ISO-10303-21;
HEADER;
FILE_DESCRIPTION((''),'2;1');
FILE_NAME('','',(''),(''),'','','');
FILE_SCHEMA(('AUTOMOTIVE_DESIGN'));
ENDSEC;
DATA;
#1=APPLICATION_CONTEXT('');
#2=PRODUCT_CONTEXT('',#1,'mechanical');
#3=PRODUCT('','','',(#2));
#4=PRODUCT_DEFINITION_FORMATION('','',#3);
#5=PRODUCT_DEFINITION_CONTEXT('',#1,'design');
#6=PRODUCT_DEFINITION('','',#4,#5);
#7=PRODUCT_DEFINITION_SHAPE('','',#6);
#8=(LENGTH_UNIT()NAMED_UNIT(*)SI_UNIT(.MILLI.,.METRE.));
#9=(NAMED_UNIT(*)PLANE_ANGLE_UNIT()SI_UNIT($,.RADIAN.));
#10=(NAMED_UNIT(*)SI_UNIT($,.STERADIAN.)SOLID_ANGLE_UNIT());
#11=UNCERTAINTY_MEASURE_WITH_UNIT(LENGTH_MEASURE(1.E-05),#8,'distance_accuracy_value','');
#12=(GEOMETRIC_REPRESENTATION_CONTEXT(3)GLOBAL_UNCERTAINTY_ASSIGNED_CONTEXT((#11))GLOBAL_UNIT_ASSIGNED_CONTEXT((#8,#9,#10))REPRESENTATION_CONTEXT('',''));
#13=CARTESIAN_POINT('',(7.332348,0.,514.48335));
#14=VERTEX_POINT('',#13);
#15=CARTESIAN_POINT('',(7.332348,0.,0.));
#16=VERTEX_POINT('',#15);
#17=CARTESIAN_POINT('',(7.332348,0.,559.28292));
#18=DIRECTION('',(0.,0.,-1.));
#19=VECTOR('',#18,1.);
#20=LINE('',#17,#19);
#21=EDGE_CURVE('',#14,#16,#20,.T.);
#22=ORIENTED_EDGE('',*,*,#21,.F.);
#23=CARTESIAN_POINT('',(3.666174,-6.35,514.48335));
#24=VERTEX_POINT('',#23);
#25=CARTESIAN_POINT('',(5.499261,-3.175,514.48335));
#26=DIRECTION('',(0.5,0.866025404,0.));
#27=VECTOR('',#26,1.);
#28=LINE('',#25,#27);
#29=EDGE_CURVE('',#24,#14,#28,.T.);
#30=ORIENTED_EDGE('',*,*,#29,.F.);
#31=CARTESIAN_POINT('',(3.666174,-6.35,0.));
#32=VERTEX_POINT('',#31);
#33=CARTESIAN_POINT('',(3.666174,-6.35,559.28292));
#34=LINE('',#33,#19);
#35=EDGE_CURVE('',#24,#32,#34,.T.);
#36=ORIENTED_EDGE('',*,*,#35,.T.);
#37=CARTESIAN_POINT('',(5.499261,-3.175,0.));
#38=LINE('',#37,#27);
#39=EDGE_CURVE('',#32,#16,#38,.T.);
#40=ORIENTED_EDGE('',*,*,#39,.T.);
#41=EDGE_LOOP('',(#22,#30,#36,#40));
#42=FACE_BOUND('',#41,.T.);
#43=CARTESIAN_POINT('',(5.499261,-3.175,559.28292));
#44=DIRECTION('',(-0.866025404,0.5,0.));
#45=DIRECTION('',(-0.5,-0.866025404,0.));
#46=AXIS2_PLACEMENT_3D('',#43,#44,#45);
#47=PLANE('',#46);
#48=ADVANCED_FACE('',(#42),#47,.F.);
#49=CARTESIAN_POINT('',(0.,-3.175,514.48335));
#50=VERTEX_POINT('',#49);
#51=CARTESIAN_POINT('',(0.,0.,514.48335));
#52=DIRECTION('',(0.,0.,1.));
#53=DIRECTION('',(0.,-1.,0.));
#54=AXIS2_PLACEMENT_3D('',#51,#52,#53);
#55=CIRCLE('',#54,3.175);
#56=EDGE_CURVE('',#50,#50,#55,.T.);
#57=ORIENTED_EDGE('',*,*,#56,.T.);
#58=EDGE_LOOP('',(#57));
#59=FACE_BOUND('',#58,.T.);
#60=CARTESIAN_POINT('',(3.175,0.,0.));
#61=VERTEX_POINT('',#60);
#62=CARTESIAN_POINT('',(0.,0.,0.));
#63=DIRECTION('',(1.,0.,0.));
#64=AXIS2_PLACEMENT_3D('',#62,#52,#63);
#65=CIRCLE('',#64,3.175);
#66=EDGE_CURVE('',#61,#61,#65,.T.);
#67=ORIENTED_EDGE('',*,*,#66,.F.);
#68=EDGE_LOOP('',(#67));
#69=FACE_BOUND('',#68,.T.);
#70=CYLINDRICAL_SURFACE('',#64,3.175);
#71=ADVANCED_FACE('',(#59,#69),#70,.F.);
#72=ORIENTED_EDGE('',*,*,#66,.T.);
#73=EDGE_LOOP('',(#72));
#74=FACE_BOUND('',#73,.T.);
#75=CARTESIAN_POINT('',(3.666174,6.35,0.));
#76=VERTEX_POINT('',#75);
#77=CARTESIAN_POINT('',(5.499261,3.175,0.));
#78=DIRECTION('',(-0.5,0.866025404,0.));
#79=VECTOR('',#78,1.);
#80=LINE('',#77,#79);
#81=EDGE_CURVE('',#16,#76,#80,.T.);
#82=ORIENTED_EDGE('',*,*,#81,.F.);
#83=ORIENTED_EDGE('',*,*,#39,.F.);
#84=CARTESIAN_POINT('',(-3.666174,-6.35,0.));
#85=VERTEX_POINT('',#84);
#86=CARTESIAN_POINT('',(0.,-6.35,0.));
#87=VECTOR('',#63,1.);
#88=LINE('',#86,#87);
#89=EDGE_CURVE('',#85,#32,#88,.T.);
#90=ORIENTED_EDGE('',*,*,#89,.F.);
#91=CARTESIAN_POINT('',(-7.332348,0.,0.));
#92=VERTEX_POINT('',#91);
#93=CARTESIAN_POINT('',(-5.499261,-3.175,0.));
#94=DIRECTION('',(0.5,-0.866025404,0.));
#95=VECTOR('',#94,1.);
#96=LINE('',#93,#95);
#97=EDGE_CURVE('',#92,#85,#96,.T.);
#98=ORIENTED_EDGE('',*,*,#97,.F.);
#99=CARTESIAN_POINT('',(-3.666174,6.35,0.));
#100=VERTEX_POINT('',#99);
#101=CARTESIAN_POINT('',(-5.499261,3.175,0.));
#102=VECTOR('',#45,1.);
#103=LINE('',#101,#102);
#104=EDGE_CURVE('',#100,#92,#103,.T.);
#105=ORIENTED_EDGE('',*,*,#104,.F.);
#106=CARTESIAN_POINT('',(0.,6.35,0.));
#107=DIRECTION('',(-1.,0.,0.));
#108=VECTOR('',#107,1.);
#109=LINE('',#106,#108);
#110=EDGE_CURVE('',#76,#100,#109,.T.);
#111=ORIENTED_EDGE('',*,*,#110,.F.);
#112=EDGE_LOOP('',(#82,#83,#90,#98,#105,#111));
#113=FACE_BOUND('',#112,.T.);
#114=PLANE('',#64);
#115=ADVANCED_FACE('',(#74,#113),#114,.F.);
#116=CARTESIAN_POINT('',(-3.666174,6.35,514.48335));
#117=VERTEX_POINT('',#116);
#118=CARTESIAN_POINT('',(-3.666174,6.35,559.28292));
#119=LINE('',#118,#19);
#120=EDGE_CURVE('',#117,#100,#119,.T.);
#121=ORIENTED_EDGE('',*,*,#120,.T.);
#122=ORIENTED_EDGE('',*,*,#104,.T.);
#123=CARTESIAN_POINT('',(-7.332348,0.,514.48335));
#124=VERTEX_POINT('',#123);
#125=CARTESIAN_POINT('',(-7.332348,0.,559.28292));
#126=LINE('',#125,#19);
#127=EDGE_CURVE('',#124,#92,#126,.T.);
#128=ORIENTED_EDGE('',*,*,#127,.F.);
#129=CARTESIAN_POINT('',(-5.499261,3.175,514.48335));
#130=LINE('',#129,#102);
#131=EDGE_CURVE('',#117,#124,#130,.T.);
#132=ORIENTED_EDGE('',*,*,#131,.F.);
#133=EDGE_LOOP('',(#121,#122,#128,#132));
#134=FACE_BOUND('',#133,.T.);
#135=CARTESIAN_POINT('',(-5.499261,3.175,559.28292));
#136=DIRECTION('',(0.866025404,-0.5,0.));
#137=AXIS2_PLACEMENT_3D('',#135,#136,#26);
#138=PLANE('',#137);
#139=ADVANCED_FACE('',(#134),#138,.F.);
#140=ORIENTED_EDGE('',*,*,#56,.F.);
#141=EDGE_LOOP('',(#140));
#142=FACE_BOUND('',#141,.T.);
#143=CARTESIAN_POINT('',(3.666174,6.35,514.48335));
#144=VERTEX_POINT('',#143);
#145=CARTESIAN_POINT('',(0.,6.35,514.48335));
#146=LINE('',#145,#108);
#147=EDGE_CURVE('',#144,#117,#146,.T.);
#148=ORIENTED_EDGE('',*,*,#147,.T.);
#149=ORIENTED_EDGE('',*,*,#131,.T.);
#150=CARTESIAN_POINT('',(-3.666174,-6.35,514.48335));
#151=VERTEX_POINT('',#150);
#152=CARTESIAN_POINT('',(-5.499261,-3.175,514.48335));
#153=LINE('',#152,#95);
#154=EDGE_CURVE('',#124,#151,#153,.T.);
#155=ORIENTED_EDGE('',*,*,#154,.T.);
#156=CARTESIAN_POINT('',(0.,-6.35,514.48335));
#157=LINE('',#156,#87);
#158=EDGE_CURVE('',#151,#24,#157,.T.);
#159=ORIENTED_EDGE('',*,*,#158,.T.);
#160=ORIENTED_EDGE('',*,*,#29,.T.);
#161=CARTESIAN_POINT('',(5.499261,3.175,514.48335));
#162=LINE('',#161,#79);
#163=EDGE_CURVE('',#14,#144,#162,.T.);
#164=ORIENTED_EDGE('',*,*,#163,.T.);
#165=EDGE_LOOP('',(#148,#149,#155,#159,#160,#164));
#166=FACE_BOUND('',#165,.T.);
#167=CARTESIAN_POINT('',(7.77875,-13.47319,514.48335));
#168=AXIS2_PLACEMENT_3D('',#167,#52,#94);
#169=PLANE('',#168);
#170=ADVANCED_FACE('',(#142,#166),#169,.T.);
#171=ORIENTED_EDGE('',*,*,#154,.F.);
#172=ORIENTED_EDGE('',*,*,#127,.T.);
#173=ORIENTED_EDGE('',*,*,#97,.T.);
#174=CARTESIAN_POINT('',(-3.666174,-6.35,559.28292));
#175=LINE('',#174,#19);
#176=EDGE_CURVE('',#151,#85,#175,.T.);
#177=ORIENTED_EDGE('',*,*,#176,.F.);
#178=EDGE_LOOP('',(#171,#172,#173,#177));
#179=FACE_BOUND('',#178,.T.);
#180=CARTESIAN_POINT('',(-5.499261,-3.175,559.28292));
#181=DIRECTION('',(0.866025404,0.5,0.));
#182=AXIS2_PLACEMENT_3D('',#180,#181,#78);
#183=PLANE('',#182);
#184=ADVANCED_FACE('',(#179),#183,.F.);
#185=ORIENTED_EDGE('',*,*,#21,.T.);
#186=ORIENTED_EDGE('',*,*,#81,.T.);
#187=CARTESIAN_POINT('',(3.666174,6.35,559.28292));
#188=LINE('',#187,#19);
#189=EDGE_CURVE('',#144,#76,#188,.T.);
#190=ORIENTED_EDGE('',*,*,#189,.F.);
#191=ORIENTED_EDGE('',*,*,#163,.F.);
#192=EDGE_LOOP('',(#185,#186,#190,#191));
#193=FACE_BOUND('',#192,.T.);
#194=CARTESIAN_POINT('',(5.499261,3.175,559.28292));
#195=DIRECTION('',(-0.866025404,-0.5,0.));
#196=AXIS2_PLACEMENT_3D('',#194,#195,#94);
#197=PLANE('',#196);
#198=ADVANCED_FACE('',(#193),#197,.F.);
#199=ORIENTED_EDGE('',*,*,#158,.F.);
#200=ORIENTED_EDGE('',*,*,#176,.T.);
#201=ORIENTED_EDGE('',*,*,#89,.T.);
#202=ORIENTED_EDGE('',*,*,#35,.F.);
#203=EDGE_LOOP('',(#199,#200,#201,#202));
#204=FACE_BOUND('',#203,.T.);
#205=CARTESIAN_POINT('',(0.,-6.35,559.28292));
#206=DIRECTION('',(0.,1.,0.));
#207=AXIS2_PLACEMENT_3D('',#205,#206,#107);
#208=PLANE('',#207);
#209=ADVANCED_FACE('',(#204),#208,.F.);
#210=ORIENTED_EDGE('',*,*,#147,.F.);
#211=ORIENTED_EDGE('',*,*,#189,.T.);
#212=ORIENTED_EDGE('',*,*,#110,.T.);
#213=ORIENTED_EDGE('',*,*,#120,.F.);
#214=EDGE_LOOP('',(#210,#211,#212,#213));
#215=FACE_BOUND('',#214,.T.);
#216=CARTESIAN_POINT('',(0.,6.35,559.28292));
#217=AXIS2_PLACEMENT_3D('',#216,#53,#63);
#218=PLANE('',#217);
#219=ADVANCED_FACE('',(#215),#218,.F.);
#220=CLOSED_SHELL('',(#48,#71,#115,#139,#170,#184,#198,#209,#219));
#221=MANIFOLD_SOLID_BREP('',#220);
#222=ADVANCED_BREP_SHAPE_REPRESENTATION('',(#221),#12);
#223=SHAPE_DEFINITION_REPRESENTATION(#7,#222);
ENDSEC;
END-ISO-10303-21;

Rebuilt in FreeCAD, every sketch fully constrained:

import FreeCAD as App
import Part
import Sketcher
Q = App.Units.Quantity


def add_polygon(sketch, points):
    """Adds a closed chain of lines whose ends are joined by coincident constraints."""
    first, n = sketch.GeometryCount, len(points)
    for a, b in zip(points, points[1:] + points[:1]):
        sketch.addGeometry(Part.LineSegment(App.Vector(*a, 0), App.Vector(*b, 0)), False)
    for i in range(n):
        sketch.addConstraint(Sketcher.Constraint("Coincident", first + i, 2, first + (i + 1) % n, 1))

doc = App.newDocument("Part")
body = doc.addObject("PartDesign::Body", "Body")

sketch1 = body.newObject("Sketcher::SketchObject", "Sketch")
sketch1.AttachmentSupport = (doc.getObject("XY_Plane"), [""])
sketch1.MapMode = "FlatFace"
add_polygon(sketch1, [(-7, 0), (-4, -6), (4, -6), (7, 0), (4, 6), (-4, 6)])
sketch1.addConstraint(Sketcher.Constraint("Horizontal", 1))
sketch1.addConstraint(Sketcher.Constraint("Horizontal", 4))
sketch1.addConstraint(Sketcher.Constraint("Symmetric", 0, 2, 3, 2, -1, 1))
sketch1.addConstraint(Sketcher.Constraint("Symmetric", 2, 2, 5, 2, -1, 1))
sketch1.addConstraint(Sketcher.Constraint("PointOnObject", 2, 2, -1))
sketch1.addConstraint(Sketcher.Constraint("Parallel", 2, 5))
sketch1.addConstraint(Sketcher.Constraint("Vertical", 1, 2, 3, 2))
sketch1.addConstraint(Sketcher.Constraint("Angle", 0, Q("-60 deg")))
sketch1.addConstraint(Sketcher.Constraint("DistanceY", 1, 2, 3, 2, Q("12.7 mm")))
sketch1.addConstraint(Sketcher.Constraint("DistanceX", 1, 1, 1, 2, Q("7.332348 mm")))
pad1 = body.newObject("PartDesign::Pad", "Pad")
pad1.Profile = sketch1
pad1.Length = 514.48335

sketch2 = body.newObject("Sketcher::SketchObject", "Sketch001")
sketch2.AttachmentSupport = (doc.getObject("XY_Plane"), [""])
sketch2.MapMode = "FlatFace"
sketch2.AttachmentOffset = App.Placement(App.Vector(0, 0, 514.48335), App.Rotation())
sketch2.addGeometry(Part.Circle(App.Vector(0, 0, 0), App.Vector(0, 0, 1), 3.2), False)
sketch2.addConstraint(Sketcher.Constraint("Coincident", 0, 3, -1, 1))
sketch2.addConstraint(Sketcher.Constraint("Diameter", 0, Q("6.35 mm")))
pocket1 = body.newObject("PartDesign::Pocket", "Pocket")
pocket1.Profile = sketch2
pocket1.Type = "ThroughAll"
pocket1.Midplane = True

doc.recompute()
